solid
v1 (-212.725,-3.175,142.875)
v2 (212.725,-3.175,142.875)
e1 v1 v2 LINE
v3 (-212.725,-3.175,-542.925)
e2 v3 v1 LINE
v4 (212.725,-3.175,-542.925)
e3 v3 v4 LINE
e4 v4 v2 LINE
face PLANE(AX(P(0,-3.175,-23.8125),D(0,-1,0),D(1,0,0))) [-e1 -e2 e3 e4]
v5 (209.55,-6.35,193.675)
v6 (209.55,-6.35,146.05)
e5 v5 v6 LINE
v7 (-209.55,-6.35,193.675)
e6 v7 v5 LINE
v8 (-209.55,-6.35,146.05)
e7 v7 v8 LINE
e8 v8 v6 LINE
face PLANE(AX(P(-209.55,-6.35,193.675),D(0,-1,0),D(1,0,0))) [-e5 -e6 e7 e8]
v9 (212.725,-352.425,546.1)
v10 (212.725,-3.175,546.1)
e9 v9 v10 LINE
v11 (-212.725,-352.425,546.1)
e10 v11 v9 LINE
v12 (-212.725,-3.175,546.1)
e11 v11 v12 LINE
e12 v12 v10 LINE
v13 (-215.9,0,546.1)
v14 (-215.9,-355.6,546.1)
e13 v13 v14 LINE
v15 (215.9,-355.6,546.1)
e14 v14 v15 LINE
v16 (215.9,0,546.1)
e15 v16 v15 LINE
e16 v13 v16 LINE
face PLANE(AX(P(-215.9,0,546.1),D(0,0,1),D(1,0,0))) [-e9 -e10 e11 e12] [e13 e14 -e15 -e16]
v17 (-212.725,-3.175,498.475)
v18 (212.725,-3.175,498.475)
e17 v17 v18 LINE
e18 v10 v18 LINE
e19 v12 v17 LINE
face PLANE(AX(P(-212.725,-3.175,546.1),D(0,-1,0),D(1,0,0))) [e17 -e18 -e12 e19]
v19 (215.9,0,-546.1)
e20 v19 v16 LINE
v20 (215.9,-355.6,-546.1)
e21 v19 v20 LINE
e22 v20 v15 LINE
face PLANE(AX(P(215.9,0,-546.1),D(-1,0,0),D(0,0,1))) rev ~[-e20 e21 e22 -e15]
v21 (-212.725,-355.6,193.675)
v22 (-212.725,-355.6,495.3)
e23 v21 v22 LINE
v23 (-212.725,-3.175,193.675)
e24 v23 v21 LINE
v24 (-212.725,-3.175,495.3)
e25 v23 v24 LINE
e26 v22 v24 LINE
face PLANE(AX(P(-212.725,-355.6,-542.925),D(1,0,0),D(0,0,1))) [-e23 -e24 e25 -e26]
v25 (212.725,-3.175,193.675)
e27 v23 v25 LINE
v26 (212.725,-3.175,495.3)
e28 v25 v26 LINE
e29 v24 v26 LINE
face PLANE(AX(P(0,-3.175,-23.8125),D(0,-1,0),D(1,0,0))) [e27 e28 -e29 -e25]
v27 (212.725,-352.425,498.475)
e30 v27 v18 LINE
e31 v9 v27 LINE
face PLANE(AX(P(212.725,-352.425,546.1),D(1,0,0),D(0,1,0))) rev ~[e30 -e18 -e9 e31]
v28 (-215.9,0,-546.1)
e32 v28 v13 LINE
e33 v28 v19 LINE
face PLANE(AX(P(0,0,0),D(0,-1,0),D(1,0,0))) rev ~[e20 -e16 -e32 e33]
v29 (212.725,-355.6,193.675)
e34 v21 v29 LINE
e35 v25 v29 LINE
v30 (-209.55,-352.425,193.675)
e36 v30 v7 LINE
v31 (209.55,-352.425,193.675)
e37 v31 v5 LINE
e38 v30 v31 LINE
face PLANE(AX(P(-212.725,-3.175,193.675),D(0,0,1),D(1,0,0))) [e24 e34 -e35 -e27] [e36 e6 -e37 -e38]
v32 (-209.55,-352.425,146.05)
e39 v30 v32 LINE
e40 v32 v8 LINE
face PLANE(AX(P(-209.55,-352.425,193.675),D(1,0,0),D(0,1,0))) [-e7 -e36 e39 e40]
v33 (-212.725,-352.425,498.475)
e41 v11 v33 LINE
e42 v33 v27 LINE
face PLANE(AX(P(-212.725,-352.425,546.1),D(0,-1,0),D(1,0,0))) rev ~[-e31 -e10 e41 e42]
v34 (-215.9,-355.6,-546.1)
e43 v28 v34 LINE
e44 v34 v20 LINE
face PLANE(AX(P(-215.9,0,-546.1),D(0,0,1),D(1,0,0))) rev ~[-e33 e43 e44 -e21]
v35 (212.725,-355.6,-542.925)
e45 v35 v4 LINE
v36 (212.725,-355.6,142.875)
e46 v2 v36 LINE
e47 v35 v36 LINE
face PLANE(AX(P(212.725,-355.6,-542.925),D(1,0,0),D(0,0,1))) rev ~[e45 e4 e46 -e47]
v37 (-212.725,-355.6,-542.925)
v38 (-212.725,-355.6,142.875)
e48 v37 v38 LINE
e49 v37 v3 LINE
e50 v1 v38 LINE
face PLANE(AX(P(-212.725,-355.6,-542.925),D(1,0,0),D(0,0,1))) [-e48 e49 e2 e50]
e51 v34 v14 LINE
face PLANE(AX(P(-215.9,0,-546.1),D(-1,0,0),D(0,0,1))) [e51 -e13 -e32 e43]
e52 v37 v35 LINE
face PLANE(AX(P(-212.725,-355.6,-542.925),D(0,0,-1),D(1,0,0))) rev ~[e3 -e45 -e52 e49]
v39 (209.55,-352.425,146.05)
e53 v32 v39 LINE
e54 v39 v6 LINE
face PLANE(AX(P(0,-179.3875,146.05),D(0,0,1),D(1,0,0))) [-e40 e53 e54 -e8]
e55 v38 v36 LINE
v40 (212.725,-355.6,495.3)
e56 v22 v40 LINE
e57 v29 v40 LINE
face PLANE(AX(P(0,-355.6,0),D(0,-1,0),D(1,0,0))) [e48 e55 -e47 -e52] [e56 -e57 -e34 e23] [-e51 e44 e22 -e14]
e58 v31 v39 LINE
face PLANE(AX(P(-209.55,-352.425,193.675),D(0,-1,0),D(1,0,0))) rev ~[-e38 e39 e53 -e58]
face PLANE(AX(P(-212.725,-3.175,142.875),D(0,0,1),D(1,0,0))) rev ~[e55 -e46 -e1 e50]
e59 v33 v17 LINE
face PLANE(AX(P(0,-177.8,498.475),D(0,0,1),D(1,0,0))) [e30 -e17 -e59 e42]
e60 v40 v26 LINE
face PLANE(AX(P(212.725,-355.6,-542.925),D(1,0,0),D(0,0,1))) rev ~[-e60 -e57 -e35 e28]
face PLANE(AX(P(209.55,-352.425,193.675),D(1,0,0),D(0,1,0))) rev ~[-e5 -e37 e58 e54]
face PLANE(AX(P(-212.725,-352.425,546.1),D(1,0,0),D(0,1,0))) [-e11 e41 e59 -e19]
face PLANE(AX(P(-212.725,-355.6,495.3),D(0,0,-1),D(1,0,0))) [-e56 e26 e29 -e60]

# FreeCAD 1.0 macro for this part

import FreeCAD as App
import Part
import Sketcher

V = App.Vector
Q = App.Units.Quantity


def add_polygon(sketch, points):
    """Adds a closed chain of lines whose ends are joined by coincident constraints."""
    first, n = sketch.GeometryCount, len(points)
    for a, b in zip(points, points[1:] + points[:1]):
        sketch.addGeometry(Part.LineSegment(App.Vector(*a, 0), App.Vector(*b, 0)), False)
    for i in range(n):
        sketch.addConstraint(Sketcher.Constraint("Coincident", first + i, 2, first + (i + 1) % n, 1))

doc = App.newDocument("Part")
params = doc.addObject("Spreadsheet::Sheet", "Params")
for row, (alias, value) in enumerate([
    ("sketch1_width", "17 in"),
    ("sketch1_height", "43 in"),
    ("pad1_length", "14 in"),
    ("sketch2_width", "16.75 in"),
    ("sketch2_height", "40.875 in"),
    ("pocket1_length", "13.875 in"),
    ("sketch3_height", "2 in"),
    ("sketch3_width", "16.75 in"),
    ("pad2_length", "13.875 in"),
    ("sketch4_width", "16.5 in"),
    ("sketch4_height", "13.625 in"),
    ("pocket2_length", "1.875 in"),
    ("sketch5_width", "16.75 in"),
    ("sketch5_height", "13.75 in"),
    ("pocket3_length", "1.875 in"),
], start=1):
    params.set(f"A{row}", alias)
    params.set(f"B{row}", "=" + value)
    params.setAlias(f"B{row}", alias)

body = doc.addObject("PartDesign::Body", "Body")

sketch1 = body.newObject("Sketcher::SketchObject", "Sketch")
sketch1.AttachmentSupport = (doc.getObject("XZ_Plane"), [""])
sketch1.MapMode = "FlatFace"
add_polygon(sketch1, [(-215.9, 546.1), (-215.9, -546.1), (215.9, -546.1), (215.9, 546.1)])
sketch1.addConstraint([
    Sketcher.Constraint("Vertical", 0),
    Sketcher.Constraint("Horizontal", 1),
    Sketcher.Constraint("Vertical", 2),
    Sketcher.Constraint("Horizontal", 3),
    Sketcher.Constraint("Symmetric", 0, 2, 2, 2, -1, 1),
    Sketcher.Constraint("DistanceX", 1, 1, 1, 2, Q("17 in")),
    Sketcher.Constraint("DistanceY", 0, 2, 0, 1, Q("43 in")),
])
sketch1.setExpression("Constraints[9]", "Params.sketch1_width")
sketch1.setExpression("Constraints[10]", "Params.sketch1_height")
pad1 = body.newObject("PartDesign::Pad", "Pad")
pad1.Profile = sketch1
pad1.setExpression("Length", "Params.pad1_length")

sketch2 = body.newObject("Sketcher::SketchObject", "Sketch001")
sketch2.AttachmentSupport = (doc.getObject("XZ_Plane"), [""])
sketch2.MapMode = "FlatFace"
sketch2.AttachmentOffset = App.Placement(V(0, 0, 14 * 25.4), App.Rotation())
add_polygon(sketch2, [(-212.725, 495.3), (-212.725, -542.925), (212.725, -542.925), (212.725, 495.3)])
sketch2.addConstraint([
    Sketcher.Constraint("Vertical", 0),
    Sketcher.Constraint("Horizontal", 1),
    Sketcher.Constraint("Vertical", 2),
    Sketcher.Constraint("Horizontal", 3),
    Sketcher.Constraint("DistanceX", 1, 1, 1, 2, Q("16.75 in")),
    Sketcher.Constraint("DistanceY", -1, 1, 2, 2, Q("19.5 in")),
    Sketcher.Constraint("DistanceY", 0, 2, 0, 1, Q("40.875 in")),
    Sketcher.Constraint("DistanceX", 0, 2, -1, 1, Q("8.375 in")),
])
sketch2.setExpression("Constraints[8]", "Params.sketch2_width")
sketch2.setExpression("Constraints[10]", "Params.sketch2_height")
pocket1 = body.newObject("PartDesign::Pocket", "Pocket")
pocket1.Profile = sketch2
pocket1.setExpression("Length", "Params.pocket1_length")

sketch3 = body.newObject("Sketcher::SketchObject", "Sketch002")
sketch3.AttachmentSupport = (doc.getObject("XZ_Plane"), [""])
sketch3.MapMode = "FlatFace"
sketch3.AttachmentOffset = App.Placement(V(0, 0, 0.125 * 25.4), App.Rotation())
add_polygon(sketch3, [(-212.725, 193.675), (-212.725, 142.875), (212.725, 142.875), (212.725, 193.675)])
sketch3.addConstraint([
    Sketcher.Constraint("Vertical", 0),
    Sketcher.Constraint("Horizontal", 1),
    Sketcher.Constraint("Vertical", 2),
    Sketcher.Constraint("Horizontal", 3),
    Sketcher.Constraint("DistanceY", 0, 2, 0, 1, Q("2 in")),
    Sketcher.Constraint("DistanceX", 1, 1, 1, 2, Q("16.75 in")),
    Sketcher.Constraint("DistanceX", 0, 2, -1, 1, Q("8.375 in")),
    Sketcher.Constraint("DistanceY", -1, 1, 0, 2, Q("5.625 in")),
])
sketch3.setExpression("Constraints[8]", "Params.sketch3_height")
sketch3.setExpression("Constraints[9]", "Params.sketch3_width")
pad2 = body.newObject("PartDesign::Pad", "Pad001")
pad2.Profile = sketch3
pad2.setExpression("Length", "Params.pad2_length")

sketch4 = body.newObject("Sketcher::SketchObject", "Sketch003")
sketch4.AttachmentSupport = (doc.getObject("XY_Plane"), [""])
sketch4.MapMode = "FlatFace"
sketch4.AttachmentOffset = App.Placement(V(0, 0, 7.625 * 25.4), App.Rotation())
add_polygon(sketch4, [(-209.55, -6.35), (-209.55, -352.425), (209.55, -352.425), (209.55, -6.35)])
sketch4.addConstraint([
    Sketcher.Constraint("Vertical", 0),
    Sketcher.Constraint("Horizontal", 1),
    Sketcher.Constraint("Vertical", 2),
    Sketcher.Constraint("Horizontal", 3),
    Sketcher.Constraint("DistanceX", 1, 1, 1, 2, Q("16.5 in")),
    Sketcher.Constraint("DistanceY", 0, 2, 0, 1, Q("13.625 in")),
    Sketcher.Constraint("DistanceX", 0, 2, -1, 1, Q("8.25 in")),
    Sketcher.Constraint("DistanceY", 2, 2, -1, 1, Q("0.25 in")),
])
sketch4.setExpression("Constraints[8]", "Params.sketch4_width")
sketch4.setExpression("Constraints[9]", "Params.sketch4_height")
pocket2 = body.newObject("PartDesign::Pocket", "Pocket001")
pocket2.Profile = sketch4
pocket2.setExpression("Length", "Params.pocket2_length")

sketch5 = body.newObject("Sketcher::SketchObject", "Sketch004")
sketch5.AttachmentSupport = (doc.getObject("XY_Plane"), [""])
sketch5.MapMode = "FlatFace"
sketch5.AttachmentOffset = App.Placement(V(0, 0, 21.5 * 25.4), App.Rotation())
add_polygon(sketch5, [(-212.725, -3.175), (-212.725, -352.425), (212.725, -352.425), (212.725, -3.175)])
sketch5.addConstraint([
    Sketcher.Constraint("Vertical", 0),
    Sketcher.Constraint("Horizontal", 1),
    Sketcher.Constraint("Vertical", 2),
    Sketcher.Constraint("Horizontal", 3),
    Sketcher.Constraint("DistanceX", 1, 1, 1, 2, Q("16.75 in")),
    Sketcher.Constraint("DistanceY", 0, 2, 0, 1, Q("13.75 in")),
    Sketcher.Constraint("DistanceX", 0, 2, -1, 1, Q("8.375 in")),
    Sketcher.Constraint("DistanceY", 0, 2, -1, 1, Q("13.875 in")),
])
sketch5.setExpression("Constraints[8]", "Params.sketch5_width")
sketch5.setExpression("Constraints[9]", "Params.sketch5_height")
pocket3 = body.newObject("PartDesign::Pocket", "Pocket002")
pocket3.Profile = sketch5
pocket3.setExpression("Length", "Params.pocket3_length")

doc.recompute()
